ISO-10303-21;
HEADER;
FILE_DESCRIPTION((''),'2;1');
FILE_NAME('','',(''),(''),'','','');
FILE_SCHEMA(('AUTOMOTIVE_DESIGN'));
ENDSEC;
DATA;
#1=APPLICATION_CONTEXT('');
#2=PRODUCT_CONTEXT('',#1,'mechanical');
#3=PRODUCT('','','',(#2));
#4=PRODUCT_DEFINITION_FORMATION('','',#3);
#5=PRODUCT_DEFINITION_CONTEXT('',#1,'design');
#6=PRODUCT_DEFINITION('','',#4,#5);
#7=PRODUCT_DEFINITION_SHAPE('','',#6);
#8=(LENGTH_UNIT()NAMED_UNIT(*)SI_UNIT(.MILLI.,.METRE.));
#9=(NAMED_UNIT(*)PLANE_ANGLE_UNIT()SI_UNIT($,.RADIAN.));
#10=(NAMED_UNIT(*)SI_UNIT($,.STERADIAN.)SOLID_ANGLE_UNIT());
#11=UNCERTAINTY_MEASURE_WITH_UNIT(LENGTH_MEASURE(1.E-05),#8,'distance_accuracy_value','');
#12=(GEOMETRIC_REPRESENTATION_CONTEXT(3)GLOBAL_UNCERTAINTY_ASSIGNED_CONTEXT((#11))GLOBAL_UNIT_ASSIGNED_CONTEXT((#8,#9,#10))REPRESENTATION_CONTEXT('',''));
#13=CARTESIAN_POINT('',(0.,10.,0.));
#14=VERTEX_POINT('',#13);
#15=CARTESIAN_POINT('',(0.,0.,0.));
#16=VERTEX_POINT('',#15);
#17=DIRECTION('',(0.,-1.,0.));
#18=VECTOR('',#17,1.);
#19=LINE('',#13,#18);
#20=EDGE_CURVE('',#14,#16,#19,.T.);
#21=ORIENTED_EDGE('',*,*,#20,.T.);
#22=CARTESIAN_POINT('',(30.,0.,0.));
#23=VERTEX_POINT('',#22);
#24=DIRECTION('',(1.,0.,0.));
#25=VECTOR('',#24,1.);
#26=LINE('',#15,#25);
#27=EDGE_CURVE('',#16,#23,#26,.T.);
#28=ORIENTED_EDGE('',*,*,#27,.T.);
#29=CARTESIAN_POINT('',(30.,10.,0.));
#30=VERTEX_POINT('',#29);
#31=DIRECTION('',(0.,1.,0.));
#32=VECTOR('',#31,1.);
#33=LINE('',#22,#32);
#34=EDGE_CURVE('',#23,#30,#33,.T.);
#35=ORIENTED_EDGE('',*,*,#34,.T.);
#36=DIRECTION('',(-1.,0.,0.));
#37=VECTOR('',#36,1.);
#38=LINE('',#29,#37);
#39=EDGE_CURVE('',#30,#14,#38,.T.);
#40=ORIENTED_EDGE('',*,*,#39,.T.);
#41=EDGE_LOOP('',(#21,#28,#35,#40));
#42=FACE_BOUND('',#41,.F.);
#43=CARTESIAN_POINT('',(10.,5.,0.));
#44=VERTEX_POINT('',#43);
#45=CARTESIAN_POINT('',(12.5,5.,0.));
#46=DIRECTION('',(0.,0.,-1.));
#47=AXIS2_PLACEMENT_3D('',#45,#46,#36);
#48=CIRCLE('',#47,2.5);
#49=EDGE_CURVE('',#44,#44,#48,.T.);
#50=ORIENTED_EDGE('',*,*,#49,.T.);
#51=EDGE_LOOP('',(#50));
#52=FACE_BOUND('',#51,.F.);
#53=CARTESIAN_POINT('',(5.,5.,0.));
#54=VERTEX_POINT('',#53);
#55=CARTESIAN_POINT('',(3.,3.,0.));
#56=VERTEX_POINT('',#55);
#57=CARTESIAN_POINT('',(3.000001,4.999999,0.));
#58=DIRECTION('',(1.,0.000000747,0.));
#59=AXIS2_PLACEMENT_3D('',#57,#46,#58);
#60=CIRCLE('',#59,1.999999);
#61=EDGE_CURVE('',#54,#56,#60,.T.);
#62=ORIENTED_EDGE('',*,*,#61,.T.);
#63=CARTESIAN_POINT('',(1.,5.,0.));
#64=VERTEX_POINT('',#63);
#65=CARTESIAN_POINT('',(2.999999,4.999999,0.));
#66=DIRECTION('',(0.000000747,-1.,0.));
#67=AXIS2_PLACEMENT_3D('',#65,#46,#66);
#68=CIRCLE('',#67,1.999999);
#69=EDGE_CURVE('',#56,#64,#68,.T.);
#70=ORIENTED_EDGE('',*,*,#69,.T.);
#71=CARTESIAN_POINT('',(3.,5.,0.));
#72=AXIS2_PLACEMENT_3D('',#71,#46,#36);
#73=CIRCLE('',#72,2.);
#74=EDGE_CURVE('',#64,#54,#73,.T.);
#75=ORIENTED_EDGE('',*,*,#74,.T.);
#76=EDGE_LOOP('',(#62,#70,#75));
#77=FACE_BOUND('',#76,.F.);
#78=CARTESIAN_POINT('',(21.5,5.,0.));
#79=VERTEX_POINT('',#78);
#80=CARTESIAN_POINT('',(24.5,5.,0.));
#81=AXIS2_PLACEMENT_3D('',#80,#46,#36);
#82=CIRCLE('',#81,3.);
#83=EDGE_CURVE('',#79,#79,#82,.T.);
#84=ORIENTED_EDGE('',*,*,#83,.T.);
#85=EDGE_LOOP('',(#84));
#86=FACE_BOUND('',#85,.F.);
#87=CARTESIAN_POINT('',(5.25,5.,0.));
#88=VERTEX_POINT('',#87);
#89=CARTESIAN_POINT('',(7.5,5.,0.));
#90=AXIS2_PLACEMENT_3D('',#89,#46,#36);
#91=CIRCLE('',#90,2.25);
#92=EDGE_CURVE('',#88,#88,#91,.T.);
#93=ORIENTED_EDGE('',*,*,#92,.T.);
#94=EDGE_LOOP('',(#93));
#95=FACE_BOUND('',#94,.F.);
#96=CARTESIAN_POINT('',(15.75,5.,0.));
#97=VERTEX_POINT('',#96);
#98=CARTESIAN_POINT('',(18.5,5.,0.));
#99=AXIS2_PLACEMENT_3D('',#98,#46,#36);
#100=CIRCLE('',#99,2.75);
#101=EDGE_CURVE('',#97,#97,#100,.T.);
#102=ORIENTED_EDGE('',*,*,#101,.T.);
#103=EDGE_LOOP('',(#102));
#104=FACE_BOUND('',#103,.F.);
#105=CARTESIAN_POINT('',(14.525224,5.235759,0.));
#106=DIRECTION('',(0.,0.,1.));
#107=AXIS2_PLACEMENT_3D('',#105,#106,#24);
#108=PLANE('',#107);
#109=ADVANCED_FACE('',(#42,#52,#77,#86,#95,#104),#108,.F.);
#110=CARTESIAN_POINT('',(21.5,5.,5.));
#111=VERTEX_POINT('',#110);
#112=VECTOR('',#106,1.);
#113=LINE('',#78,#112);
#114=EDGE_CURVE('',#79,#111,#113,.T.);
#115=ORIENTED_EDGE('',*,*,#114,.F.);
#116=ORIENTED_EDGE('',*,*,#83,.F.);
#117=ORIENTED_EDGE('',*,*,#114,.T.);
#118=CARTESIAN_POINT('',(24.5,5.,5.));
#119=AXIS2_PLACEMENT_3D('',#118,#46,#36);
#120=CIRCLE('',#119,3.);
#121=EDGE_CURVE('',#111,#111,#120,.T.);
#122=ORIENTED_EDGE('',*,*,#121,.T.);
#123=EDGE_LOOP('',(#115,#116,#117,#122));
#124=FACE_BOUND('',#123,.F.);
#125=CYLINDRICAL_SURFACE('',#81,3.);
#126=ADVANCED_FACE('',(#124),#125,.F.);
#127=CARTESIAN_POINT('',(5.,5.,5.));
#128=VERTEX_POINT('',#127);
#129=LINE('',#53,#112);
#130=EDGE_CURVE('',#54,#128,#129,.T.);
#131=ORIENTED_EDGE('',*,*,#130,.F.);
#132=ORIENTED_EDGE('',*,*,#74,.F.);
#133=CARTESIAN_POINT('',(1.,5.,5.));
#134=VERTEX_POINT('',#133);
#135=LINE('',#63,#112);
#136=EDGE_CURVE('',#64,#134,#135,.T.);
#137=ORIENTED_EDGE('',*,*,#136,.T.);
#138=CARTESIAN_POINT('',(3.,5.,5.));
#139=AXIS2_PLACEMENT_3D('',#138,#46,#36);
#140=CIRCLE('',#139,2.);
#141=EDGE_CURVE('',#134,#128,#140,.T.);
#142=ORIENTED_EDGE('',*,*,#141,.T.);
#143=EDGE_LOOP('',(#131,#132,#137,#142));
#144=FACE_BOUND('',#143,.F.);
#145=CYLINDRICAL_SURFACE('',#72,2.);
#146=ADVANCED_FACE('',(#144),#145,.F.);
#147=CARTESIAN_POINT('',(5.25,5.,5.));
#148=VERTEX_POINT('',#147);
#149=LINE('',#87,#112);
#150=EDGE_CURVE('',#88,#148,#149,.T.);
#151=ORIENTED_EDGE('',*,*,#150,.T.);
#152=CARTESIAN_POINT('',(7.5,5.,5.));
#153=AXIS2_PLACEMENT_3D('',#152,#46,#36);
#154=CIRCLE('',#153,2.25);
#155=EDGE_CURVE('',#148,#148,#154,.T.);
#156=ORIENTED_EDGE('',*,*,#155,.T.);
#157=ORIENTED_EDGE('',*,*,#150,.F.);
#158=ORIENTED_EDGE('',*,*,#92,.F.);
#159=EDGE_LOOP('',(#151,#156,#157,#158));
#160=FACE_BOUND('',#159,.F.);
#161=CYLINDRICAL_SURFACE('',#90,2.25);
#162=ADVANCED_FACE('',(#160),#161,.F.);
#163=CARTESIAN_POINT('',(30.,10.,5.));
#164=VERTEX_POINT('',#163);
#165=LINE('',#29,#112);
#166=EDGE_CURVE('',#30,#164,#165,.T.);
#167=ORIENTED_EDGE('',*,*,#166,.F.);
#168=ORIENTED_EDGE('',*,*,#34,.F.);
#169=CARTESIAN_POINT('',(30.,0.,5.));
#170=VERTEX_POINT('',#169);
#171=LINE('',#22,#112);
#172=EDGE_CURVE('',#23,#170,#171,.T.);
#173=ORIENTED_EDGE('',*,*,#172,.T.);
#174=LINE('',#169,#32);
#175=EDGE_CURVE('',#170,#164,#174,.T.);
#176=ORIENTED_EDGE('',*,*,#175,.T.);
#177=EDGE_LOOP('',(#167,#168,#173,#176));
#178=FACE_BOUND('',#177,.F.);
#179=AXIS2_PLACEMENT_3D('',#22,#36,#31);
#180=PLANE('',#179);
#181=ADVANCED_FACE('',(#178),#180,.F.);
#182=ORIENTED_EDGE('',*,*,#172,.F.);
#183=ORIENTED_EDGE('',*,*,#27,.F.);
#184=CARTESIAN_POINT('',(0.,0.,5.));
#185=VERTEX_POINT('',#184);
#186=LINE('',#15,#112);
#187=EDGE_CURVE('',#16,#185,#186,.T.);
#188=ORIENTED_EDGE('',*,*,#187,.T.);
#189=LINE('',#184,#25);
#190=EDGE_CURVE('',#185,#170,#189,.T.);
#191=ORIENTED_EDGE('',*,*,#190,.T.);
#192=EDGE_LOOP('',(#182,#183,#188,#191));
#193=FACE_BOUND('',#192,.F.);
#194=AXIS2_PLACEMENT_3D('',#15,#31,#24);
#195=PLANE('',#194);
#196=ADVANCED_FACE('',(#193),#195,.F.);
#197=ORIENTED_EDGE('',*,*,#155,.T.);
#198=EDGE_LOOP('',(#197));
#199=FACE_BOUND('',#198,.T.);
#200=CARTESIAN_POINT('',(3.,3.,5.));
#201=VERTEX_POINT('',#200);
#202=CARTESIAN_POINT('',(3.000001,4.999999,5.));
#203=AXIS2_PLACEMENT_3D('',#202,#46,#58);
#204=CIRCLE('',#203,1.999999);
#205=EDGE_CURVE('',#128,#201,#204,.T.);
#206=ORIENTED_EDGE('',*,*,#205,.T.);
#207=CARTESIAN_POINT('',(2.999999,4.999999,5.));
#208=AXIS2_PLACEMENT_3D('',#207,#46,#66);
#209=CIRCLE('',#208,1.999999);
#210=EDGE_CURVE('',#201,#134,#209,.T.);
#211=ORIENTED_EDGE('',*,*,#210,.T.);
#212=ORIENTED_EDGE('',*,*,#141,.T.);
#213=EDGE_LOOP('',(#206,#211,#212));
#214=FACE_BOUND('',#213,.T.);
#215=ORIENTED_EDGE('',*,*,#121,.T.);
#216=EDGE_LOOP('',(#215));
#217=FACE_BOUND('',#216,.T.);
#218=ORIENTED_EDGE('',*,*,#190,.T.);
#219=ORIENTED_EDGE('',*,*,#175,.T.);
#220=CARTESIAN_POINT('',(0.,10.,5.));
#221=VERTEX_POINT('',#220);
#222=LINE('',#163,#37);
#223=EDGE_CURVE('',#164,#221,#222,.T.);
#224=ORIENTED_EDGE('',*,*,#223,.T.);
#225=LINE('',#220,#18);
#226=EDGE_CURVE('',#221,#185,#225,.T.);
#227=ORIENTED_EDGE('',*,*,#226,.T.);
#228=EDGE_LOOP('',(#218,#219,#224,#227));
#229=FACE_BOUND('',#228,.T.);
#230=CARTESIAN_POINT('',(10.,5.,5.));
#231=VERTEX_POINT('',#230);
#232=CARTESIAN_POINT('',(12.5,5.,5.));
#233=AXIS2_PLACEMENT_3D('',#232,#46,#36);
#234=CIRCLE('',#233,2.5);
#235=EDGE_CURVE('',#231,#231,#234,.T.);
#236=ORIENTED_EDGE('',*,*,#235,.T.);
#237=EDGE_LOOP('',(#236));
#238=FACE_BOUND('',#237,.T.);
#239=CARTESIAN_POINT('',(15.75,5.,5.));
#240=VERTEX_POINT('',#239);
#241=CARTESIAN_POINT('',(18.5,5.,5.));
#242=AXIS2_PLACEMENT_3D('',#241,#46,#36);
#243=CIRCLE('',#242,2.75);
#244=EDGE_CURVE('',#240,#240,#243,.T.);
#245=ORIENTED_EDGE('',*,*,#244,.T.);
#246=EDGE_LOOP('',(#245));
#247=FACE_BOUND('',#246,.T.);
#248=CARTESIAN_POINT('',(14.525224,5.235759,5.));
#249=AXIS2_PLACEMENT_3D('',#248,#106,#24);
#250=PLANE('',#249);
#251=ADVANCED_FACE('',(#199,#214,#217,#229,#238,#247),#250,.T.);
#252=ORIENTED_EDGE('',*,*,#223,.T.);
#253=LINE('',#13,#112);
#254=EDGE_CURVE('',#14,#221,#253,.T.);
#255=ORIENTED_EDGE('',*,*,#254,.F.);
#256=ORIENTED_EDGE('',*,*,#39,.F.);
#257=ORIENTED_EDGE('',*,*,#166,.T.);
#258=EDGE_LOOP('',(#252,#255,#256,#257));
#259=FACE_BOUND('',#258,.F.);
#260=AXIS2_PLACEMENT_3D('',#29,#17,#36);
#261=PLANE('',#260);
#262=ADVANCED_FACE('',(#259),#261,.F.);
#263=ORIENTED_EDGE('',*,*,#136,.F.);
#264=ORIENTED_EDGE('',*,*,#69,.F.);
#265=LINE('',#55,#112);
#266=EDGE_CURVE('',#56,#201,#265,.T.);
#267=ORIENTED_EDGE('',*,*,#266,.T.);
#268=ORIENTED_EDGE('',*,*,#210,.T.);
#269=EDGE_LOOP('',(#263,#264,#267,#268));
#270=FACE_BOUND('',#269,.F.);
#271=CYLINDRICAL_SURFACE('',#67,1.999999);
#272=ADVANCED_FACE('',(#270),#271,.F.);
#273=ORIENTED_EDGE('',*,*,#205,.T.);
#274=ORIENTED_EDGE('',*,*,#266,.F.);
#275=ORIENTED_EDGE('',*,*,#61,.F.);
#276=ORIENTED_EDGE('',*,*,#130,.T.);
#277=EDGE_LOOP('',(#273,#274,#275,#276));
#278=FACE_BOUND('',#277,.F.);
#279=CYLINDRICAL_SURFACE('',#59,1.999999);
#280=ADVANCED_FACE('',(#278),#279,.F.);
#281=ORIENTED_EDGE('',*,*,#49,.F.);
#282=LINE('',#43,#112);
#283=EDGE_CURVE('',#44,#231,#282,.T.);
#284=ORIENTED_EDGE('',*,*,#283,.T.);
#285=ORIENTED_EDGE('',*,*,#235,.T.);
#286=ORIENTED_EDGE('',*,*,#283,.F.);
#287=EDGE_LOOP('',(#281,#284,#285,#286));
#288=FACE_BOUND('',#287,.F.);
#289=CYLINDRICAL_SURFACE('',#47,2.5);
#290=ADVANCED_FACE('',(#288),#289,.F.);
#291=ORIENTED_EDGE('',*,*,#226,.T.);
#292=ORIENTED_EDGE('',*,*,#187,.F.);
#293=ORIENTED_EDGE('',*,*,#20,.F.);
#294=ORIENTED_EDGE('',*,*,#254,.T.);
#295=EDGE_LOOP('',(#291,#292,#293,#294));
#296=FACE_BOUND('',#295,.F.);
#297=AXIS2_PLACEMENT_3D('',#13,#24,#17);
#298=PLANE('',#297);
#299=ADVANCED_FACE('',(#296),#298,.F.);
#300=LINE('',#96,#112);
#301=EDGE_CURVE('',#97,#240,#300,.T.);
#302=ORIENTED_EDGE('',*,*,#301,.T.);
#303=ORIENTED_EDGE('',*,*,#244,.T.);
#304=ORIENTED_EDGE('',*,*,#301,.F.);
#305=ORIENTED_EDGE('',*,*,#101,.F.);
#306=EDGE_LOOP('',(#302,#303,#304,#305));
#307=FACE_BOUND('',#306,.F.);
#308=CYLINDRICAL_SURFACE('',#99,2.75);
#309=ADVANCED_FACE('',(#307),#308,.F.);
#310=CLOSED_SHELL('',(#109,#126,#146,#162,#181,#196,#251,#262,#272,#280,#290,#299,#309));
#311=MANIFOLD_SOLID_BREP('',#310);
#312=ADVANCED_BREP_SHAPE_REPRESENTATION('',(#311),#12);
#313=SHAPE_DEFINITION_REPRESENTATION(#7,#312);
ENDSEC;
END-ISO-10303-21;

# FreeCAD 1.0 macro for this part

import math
import FreeCAD as App
import Part
import Sketcher

V = App.Vector

doc = App.newDocument("Part")
body = doc.addObject("PartDesign::Body", "Body")

sketch1 = body.newObject("Sketcher::SketchObject", "Sketch")
sketch1.AttachmentSupport = (doc.getObject("XY_Plane"), [""])
sketch1.MapMode = "FlatFace"
sketch1.addGeometry(Part.LineSegment(V(0, 10, 0), V(0, 0, 0)), False)
sketch1.addGeometry(Part.LineSegment(V(0, 0, 0), V(30, 0, 0)), False)
sketch1.addGeometry(Part.LineSegment(V(30, 0, 0), V(30, 10, 0)), False)
sketch1.addGeometry(Part.LineSegment(V(30, 10, 0), V(0, 10, 0)), False)
sketch1.addGeometry(Part.ArcOfCircle(Part.Circle(V(3, 5, 0), V(0, 0, 1), 2), math.radians(0), math.radians(180)), False)
sketch1.addGeometry(Part.ArcOfCircle(Part.Circle(V(3.000001, 4.999999, 0), V(0, 0, 1), 1.999999), math.radians(-90.000043), math.radians(0.000043)), False)
sketch1.addGeometry(Part.ArcOfCircle(Part.Circle(V(2.999999, 4.999999, 0), V(0, 0, 1), 1.999999), math.radians(179.999957), math.radians(270.000043)), False)
sketch1.addGeometry(Part.Circle(V(7.5, 5, 0), V(0, 0, 1), 2.25), False)
sketch1.addGeometry(Part.Circle(V(12.5, 5, 0), V(0, 0, 1), 2.5), False)
sketch1.addGeometry(Part.Circle(V(18.5, 5, 0), V(0, 0, 1), 2.75), False)
sketch1.addGeometry(Part.Circle(V(24.5, 5, 0), V(0, 0, 1), 3), False)
sketch1.addConstraint(Sketcher.Constraint("Coincident", 0, 2, 1, 1))
sketch1.addConstraint(Sketcher.Constraint("Coincident", 1, 2, 2, 1))
sketch1.addConstraint(Sketcher.Constraint("Coincident", 2, 2, 3, 1))
sketch1.addConstraint(Sketcher.Constraint("Coincident", 3, 2, 0, 1))
sketch1.addConstraint(Sketcher.Constraint("Tangent", 4, 1, 5, 2))
sketch1.addConstraint(Sketcher.Constraint("Tangent", 5, 1, 6, 2))
sketch1.addConstraint(Sketcher.Constraint("Tangent", 6, 1, 4, 2))
sketch1.addConstraint(Sketcher.Constraint("Vertical", 0))
sketch1.addConstraint(Sketcher.Constraint("Horizontal", 1))
sketch1.addConstraint(Sketcher.Constraint("Vertical", 2))
sketch1.addConstraint(Sketcher.Constraint("Horizontal", 3))
sketch1.addConstraint(Sketcher.Constraint("Coincident", 0, 2, -1, 1))
sketch1.addConstraint(Sketcher.Constraint("Horizontal", 6, 3, 7, 3))
sketch1.addConstraint(Sketcher.Constraint("Horizontal", 7, 3, 8, 3))
sketch1.addConstraint(Sketcher.Constraint("Horizontal", 8, 3, 9, 3))
sketch1.addConstraint(Sketcher.Constraint("Horizontal", 9, 3, 10, 3))
sketch1.addConstraint(Sketcher.Constraint("Horizontal", 10, 3, 4, 1))
sketch1.addConstraint(Sketcher.Constraint("Horizontal", 4, 1, 6, 1))
sketch1.addConstraint(Sketcher.Constraint("Vertical", 6, 3, 5, 1))
sketch1.addConstraint(Sketcher.Constraint("Diameter", 8, 5.0))
sketch1.addConstraint(Sketcher.Constraint("Diameter", 10, 6.0))
sketch1.addConstraint(Sketcher.Constraint("Radius", 4, 2.0))
sketch1.addConstraint(Sketcher.Constraint("Diameter", 7, 4.5))
sketch1.addConstraint(Sketcher.Constraint("Diameter", 9, 5.5))
sketch1.addConstraint(Sketcher.Constraint("DistanceX", 1, 1, 1, 2, 30.0))
sketch1.addConstraint(Sketcher.Constraint("DistanceY", 0, 2, 0, 1, 10.0))
sketch1.addConstraint(Sketcher.Constraint("DistanceX", -1, 1, 4, 3, 3.0))
sketch1.addConstraint(Sketcher.Constraint("DistanceY", -1, 1, 4, 3, 5.0))
sketch1.addConstraint(Sketcher.Constraint("DistanceX", 7, 3, 8, 3, 5.0))
sketch1.addConstraint(Sketcher.Constraint("DistanceX", 8, 3, 9, 3, 6.0))
sketch1.addConstraint(Sketcher.Constraint("DistanceX", 9, 3, 10, 3, 6.0))
sketch1.addConstraint(Sketcher.Constraint("DistanceX", -1, 1, 7, 3, 7.5))
pad1 = body.newObject("PartDesign::Pad", "Pad")
pad1.Profile = sketch1
pad1.Length = 5

doc.recompute()
